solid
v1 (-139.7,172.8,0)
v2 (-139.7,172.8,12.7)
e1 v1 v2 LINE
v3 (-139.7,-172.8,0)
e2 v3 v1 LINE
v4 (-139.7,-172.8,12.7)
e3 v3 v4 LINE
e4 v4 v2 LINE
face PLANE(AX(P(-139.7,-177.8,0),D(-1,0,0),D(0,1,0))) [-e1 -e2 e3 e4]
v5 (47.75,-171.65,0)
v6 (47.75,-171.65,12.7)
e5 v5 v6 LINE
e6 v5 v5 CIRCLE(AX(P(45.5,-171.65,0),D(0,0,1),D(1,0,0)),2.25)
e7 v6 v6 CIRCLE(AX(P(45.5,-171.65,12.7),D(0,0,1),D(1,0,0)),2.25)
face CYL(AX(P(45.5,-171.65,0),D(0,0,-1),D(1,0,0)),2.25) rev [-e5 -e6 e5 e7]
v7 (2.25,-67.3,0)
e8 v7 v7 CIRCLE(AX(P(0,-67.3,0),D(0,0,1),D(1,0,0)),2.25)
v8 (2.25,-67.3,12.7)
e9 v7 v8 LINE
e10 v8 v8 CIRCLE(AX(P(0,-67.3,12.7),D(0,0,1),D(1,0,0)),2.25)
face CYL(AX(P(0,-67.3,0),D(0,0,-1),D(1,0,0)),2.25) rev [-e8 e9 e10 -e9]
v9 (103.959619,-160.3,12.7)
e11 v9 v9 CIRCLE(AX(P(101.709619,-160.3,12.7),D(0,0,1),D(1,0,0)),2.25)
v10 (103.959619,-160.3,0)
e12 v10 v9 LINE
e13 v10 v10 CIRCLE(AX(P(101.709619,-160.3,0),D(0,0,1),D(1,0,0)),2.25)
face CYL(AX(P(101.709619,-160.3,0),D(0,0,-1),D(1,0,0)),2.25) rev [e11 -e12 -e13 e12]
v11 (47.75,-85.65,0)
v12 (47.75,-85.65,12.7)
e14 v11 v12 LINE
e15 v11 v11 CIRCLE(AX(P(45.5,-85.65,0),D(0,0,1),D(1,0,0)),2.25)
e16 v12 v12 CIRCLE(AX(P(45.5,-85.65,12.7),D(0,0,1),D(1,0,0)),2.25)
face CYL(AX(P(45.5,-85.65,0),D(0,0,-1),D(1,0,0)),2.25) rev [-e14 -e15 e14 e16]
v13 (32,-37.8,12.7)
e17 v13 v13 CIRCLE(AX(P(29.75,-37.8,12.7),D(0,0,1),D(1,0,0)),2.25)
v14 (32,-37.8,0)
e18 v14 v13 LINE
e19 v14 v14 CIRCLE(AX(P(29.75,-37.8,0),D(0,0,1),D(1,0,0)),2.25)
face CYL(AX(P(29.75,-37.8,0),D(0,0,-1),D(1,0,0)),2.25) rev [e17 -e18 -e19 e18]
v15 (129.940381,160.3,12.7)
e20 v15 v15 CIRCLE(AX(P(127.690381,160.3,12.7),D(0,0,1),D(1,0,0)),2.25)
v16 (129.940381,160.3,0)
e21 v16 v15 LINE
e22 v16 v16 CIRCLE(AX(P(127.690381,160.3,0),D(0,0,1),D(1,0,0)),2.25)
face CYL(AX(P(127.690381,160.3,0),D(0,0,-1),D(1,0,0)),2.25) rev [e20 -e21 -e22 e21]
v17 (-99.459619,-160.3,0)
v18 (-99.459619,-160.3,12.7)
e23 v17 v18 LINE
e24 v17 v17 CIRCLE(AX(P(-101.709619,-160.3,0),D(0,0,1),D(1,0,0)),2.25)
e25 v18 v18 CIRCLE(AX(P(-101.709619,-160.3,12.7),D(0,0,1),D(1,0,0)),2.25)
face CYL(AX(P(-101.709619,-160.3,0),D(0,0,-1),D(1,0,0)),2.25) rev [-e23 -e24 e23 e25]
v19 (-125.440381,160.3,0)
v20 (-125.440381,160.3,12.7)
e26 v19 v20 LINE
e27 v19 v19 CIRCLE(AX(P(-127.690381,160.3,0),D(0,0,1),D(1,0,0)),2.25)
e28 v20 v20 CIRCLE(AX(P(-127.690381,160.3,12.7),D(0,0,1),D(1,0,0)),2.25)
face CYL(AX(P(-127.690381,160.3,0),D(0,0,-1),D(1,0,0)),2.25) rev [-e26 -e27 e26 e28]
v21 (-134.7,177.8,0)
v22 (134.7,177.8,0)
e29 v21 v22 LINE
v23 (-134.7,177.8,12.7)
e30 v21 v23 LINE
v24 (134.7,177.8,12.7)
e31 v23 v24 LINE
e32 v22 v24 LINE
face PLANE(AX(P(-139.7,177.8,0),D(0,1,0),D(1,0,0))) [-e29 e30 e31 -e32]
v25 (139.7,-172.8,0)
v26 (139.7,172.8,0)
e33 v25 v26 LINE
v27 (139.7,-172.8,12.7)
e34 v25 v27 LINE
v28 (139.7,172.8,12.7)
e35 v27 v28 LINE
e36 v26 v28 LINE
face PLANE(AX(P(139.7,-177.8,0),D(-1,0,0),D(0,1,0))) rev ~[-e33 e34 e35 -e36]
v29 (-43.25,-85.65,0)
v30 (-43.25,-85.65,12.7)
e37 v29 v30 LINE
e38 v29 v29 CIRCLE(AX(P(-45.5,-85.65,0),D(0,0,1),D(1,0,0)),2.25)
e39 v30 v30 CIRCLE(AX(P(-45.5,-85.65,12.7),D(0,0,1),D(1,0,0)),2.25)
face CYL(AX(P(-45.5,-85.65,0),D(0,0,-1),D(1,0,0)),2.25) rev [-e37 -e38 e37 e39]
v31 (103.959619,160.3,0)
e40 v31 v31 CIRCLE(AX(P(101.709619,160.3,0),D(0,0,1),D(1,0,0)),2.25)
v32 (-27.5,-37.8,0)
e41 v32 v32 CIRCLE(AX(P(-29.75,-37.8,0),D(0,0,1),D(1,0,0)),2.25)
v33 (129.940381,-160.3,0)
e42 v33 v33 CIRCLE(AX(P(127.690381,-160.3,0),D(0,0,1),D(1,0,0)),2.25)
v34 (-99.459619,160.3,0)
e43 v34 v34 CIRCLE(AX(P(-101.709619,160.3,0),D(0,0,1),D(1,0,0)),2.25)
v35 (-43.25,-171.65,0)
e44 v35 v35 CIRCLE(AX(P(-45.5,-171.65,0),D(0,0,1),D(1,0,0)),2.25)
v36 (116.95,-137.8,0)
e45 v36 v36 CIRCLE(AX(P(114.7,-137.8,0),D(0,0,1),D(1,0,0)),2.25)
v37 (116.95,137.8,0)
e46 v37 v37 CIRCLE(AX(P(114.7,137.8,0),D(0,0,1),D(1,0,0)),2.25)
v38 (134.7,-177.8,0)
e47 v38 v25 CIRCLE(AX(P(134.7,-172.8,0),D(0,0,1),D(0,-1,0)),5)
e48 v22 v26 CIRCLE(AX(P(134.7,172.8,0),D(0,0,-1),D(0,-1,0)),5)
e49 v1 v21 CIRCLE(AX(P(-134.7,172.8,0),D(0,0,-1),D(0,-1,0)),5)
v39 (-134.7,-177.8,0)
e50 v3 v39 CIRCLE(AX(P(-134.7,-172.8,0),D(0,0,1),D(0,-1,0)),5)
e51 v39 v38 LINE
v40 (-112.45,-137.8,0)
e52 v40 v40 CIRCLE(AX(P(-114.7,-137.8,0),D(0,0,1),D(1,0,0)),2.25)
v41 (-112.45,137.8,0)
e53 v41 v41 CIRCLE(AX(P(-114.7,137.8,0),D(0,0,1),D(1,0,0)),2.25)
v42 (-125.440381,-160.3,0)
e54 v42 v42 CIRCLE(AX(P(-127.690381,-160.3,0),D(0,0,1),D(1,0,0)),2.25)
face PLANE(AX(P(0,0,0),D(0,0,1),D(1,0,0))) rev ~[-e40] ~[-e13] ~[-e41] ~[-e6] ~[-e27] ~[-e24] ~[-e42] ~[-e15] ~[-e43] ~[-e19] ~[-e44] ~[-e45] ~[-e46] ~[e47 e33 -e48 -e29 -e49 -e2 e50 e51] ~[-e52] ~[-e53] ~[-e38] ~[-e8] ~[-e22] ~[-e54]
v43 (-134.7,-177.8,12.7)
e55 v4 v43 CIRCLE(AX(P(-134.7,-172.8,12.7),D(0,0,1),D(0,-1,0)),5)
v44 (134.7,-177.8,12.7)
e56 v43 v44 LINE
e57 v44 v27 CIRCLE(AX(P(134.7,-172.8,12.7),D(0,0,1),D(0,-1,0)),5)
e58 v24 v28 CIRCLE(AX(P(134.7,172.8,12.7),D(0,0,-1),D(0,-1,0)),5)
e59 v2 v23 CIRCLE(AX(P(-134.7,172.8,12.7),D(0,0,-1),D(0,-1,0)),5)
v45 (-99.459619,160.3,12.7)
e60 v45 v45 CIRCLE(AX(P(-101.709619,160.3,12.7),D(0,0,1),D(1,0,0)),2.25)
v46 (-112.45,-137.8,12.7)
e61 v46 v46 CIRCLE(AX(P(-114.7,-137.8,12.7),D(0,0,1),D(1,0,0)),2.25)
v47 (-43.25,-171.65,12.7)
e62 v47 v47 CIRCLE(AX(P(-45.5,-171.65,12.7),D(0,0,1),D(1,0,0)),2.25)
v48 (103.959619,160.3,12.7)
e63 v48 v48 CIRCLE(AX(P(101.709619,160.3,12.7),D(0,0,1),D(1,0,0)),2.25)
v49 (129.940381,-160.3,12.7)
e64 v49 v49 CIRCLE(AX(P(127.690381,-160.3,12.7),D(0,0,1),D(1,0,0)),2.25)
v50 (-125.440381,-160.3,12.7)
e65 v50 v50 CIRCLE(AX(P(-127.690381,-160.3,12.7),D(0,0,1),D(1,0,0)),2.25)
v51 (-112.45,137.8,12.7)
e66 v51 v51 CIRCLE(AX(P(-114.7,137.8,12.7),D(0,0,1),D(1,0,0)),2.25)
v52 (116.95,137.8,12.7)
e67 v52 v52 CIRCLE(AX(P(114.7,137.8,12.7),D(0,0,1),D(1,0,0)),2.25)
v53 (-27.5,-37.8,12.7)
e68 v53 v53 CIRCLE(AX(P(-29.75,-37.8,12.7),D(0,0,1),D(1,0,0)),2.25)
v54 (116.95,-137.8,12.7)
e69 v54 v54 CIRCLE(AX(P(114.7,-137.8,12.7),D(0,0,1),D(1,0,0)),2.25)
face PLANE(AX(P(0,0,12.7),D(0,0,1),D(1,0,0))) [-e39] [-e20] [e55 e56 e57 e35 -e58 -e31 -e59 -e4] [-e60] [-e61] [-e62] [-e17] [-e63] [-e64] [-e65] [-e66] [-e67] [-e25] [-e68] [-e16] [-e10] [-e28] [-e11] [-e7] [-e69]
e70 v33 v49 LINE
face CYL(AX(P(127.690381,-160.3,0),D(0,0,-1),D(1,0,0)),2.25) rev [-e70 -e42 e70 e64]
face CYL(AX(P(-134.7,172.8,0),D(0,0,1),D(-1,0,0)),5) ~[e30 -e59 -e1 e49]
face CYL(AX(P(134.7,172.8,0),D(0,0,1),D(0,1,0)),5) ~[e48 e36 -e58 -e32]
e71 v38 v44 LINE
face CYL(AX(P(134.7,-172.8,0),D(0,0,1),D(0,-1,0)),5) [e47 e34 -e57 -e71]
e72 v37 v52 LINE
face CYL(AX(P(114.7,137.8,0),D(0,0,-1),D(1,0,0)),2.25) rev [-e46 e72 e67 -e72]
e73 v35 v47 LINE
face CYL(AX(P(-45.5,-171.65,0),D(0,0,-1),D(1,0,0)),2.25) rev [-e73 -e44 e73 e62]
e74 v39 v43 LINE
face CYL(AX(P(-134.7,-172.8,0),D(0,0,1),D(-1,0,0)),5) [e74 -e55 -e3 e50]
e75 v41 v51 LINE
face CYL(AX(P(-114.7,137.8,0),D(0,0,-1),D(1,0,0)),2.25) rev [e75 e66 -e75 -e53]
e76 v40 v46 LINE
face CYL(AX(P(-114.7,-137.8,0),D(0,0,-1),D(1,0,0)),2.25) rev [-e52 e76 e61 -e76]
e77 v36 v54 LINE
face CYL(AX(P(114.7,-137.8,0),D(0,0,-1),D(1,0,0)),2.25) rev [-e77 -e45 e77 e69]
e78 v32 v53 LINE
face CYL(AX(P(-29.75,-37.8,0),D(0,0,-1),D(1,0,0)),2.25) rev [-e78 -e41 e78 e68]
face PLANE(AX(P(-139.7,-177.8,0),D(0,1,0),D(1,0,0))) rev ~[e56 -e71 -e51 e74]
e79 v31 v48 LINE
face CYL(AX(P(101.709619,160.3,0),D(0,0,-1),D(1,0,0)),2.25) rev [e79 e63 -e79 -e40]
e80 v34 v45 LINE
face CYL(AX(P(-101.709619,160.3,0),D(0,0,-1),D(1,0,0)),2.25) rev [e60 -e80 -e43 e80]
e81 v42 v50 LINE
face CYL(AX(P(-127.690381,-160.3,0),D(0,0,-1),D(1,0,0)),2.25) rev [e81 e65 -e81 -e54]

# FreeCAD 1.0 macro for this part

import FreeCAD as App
import Part
import Sketcher

V = App.Vector
Q = App.Units.Quantity


def edges_at(feature, points):
    """Names of the edges that pass closest to the given points."""
    edges = feature.Shape.Edges
    near = lambda p: min(range(len(edges)), key=lambda i: edges[i].distToShape(Part.Vertex(*p))[0])
    return sorted({f"Edge{near(p) + 1}" for p in points})


def add_polygon(sketch, points):
    """Adds a closed chain of lines whose ends are joined by coincident constraints."""
    first, n = sketch.GeometryCount, len(points)
    for a, b in zip(points, points[1:] + points[:1]):
        sketch.addGeometry(Part.LineSegment(App.Vector(*a, 0), App.Vector(*b, 0)), False)
    for i in range(n):
        sketch.addConstraint(Sketcher.Constraint("Coincident", first + i, 2, first + (i + 1) % n, 1))

doc = App.newDocument("Part")
body = doc.addObject("PartDesign::Body", "Body")

# Sketch on XY plane
sketch1 = doc.addObject("Sketcher::SketchObject", "Sketch")
body.addObject(sketch1)
sketch1.AttachmentSupport = (doc.XY_Plane, [""])
sketch1.MapMode = "FlatFace"
add_polygon(sketch1, [(-139.7, 177.8), (-139.7, -177.8), (139.7, -177.8), (139.7, 177.8)])  # lines 0-3
sketch1.addGeometry(Part.Circle(V(-127.690381, -160.3, 0), V(0, 0, 1), 2.25), False)  # 4
sketch1.addGeometry(Part.Circle(V(-101.709619, -160.3, 0), V(0, 0, 1), 2.25), False)  # 5
sketch1.addGeometry(Part.Circle(V(-114.7, -137.8, 0), V(0, 0, 1), 2.25), False)  # 6
sketch1.addGeometry(Part.Circle(V(-45.5, -171.65, 0), V(0, 0, 1), 2.25), False)  # 7
sketch1.addGeometry(Part.Circle(V(-45.5, -85.65, 0), V(0, 0, 1), 2.25), False)  # 8
sketch1.addGeometry(Part.Circle(V(-29.75, -37.8, 0), V(0, 0, 1), 2.25), False)  # 9
sketch1.addGeometry(Part.Circle(V(45.5, -171.65, 0), V(0, 0, 1), 2.25), False)  # 10
sketch1.addGeometry(Part.Circle(V(101.709619, -160.3, 0), V(0, 0, 1), 2.25), False)  # 11
sketch1.addGeometry(Part.Circle(V(127.690381, -160.3, 0), V(0, 0, 1), 2.25), False)  # 12
sketch1.addGeometry(Part.Circle(V(114.7, -137.8, 0), V(0, 0, 1), 2.25), False)  # 13
sketch1.addGeometry(Part.Circle(V(0, -67.3, 0), V(0, 0, 1), 2.25), False)  # 14
sketch1.addGeometry(Part.Circle(V(45.5, -85.65, 0), V(0, 0, 1), 2.25), False)  # 15
sketch1.addGeometry(Part.Circle(V(29.75, -37.8, 0), V(0, 0, 1), 2.25), False)  # 16
sketch1.addGeometry(Part.Circle(V(-114.7, 137.8, 0), V(0, 0, 1), 2.25), False)  # 17
sketch1.addGeometry(Part.Circle(V(-127.690381, 160.3, 0), V(0, 0, 1), 2.25), False)  # 18
sketch1.addGeometry(Part.Circle(V(-101.709619, 160.3, 0), V(0, 0, 1), 2.25), False)  # 19
sketch1.addGeometry(Part.Circle(V(114.7, 137.8, 0), V(0, 0, 1), 2.25), False)  # 20
sketch1.addGeometry(Part.Circle(V(101.709619, 160.3, 0), V(0, 0, 1), 2.25), False)  # 21
sketch1.addGeometry(Part.Circle(V(127.690381, 160.3, 0), V(0, 0, 1), 2.25), False)  # 22
sketch1.addConstraint([
    Sketcher.Constraint("Vertical", 0),
    Sketcher.Constraint("Horizontal", 1),
    Sketcher.Constraint("Vertical", 2),
    Sketcher.Constraint("Horizontal", 3),
    Sketcher.Constraint("Equal", 4, 5),
    Sketcher.Constraint("Equal", 5, 6),
    Sketcher.Constraint("Equal", 6, 7),
    Sketcher.Constraint("Equal", 7, 8),
    Sketcher.Constraint("Equal", 8, 9),
    Sketcher.Constraint("Equal", 9, 10),
    Sketcher.Constraint("Equal", 10, 11),
    Sketcher.Constraint("Equal", 11, 12),
    Sketcher.Constraint("Equal", 12, 13),
    Sketcher.Constraint("Equal", 13, 14),
    Sketcher.Constraint("Equal", 14, 15),
    Sketcher.Constraint("Equal", 15, 16),
    Sketcher.Constraint("Equal", 16, 17),
    Sketcher.Constraint("Equal", 17, 18),
    Sketcher.Constraint("Equal", 18, 19),
    Sketcher.Constraint("Equal", 19, 20),
    Sketcher.Constraint("Equal", 20, 21),
    Sketcher.Constraint("Equal", 21, 22),
    Sketcher.Constraint("Symmetric", 13, 3, 17, 3, -1, 1),
    Sketcher.Constraint("Symmetric", 12, 3, 18, 3, -1, 1),
    Sketcher.Constraint("Symmetric", 11, 3, 19, 3, -1, 1),
    Sketcher.Constraint("Symmetric", 6, 3, 20, 3, -1, 1),
    Sketcher.Constraint("Symmetric", 5, 3, 21, 3, -1, 1),
    Sketcher.Constraint("Symmetric", 4, 3, 22, 3, -1, 1),
    Sketcher.Constraint("Symmetric", 0, 2, 2, 2, -1, 1),
    Sketcher.Constraint("Symmetric", 7, 3, 10, 3, -2),
    Sketcher.Constraint("Symmetric", 5, 3, 11, 3, -2),
    Sketcher.Constraint("Symmetric", 4, 3, 12, 3, -2),
    Sketcher.Constraint("Symmetric", 6, 3, 13, 3, -2),
    Sketcher.Constraint("Symmetric", 8, 3, 15, 3, -2),
    Sketcher.Constraint("Symmetric", 9, 3, 16, 3, -2),
    Sketcher.Constraint("PointOnObject", 14, 3, -2),
    Sketcher.Constraint("Horizontal", 4, 3, 5, 3),
    Sketcher.Constraint("Vertical", 7, 3, 8, 3),
    Sketcher.Constraint("DistanceX", 1, 1, 1, 2, Q("11 in")),
    Sketcher.Constraint("DistanceY", 0, 2, 0, 1, Q("14 in")),
    Sketcher.Constraint("Diameter", 4, 4.5),
    Sketcher.Constraint("DistanceY", 4, 3, -1, 1, 160.3),
    Sketcher.Constraint("DistanceX", 6, 3, -1, 1, 114.7),
    Sketcher.Constraint("DistanceY", 6, 3, -1, 1, 137.8),
    Sketcher.Constraint("DistanceX", 7, 3, -1, 1, 45.5),
    Sketcher.Constraint("DistanceY", 7, 3, -1, 1, 171.65),
    Sketcher.Constraint("DistanceY", 8, 3, -1, 1, 85.65),
    Sketcher.Constraint("DistanceX", 9, 3, -1, 1, 29.75),
    Sketcher.Constraint("DistanceY", 9, 3, -1, 1, 37.8),
    Sketcher.Constraint("DistanceY", 14, 3, -1, 1, 67.3),
    Sketcher.Constraint("DistanceX", 18, 3, 21, 3, 229.4),
    Sketcher.Constraint("DistanceX", 4, 3, -1, 1, 127.690381),
])
pad1 = doc.addObject("PartDesign::Pad", "Pad")
body.addObject(pad1)
pad1.Profile = sketch1
pad1.Length = Q("0.5 in")
doc.recompute()

fillet = doc.addObject("PartDesign::Fillet", "Fillet")
body.addObject(fillet)
fillet.Base = (pad1, edges_at(pad1, [
    (-139.7, -177.8, 6.35),
    (139.7, -177.8, 6.35),
    (139.7, 177.8, 6.35),
    (-139.7, 177.8, 6.35),
]))
fillet.Radius = 5

doc.recompute()
